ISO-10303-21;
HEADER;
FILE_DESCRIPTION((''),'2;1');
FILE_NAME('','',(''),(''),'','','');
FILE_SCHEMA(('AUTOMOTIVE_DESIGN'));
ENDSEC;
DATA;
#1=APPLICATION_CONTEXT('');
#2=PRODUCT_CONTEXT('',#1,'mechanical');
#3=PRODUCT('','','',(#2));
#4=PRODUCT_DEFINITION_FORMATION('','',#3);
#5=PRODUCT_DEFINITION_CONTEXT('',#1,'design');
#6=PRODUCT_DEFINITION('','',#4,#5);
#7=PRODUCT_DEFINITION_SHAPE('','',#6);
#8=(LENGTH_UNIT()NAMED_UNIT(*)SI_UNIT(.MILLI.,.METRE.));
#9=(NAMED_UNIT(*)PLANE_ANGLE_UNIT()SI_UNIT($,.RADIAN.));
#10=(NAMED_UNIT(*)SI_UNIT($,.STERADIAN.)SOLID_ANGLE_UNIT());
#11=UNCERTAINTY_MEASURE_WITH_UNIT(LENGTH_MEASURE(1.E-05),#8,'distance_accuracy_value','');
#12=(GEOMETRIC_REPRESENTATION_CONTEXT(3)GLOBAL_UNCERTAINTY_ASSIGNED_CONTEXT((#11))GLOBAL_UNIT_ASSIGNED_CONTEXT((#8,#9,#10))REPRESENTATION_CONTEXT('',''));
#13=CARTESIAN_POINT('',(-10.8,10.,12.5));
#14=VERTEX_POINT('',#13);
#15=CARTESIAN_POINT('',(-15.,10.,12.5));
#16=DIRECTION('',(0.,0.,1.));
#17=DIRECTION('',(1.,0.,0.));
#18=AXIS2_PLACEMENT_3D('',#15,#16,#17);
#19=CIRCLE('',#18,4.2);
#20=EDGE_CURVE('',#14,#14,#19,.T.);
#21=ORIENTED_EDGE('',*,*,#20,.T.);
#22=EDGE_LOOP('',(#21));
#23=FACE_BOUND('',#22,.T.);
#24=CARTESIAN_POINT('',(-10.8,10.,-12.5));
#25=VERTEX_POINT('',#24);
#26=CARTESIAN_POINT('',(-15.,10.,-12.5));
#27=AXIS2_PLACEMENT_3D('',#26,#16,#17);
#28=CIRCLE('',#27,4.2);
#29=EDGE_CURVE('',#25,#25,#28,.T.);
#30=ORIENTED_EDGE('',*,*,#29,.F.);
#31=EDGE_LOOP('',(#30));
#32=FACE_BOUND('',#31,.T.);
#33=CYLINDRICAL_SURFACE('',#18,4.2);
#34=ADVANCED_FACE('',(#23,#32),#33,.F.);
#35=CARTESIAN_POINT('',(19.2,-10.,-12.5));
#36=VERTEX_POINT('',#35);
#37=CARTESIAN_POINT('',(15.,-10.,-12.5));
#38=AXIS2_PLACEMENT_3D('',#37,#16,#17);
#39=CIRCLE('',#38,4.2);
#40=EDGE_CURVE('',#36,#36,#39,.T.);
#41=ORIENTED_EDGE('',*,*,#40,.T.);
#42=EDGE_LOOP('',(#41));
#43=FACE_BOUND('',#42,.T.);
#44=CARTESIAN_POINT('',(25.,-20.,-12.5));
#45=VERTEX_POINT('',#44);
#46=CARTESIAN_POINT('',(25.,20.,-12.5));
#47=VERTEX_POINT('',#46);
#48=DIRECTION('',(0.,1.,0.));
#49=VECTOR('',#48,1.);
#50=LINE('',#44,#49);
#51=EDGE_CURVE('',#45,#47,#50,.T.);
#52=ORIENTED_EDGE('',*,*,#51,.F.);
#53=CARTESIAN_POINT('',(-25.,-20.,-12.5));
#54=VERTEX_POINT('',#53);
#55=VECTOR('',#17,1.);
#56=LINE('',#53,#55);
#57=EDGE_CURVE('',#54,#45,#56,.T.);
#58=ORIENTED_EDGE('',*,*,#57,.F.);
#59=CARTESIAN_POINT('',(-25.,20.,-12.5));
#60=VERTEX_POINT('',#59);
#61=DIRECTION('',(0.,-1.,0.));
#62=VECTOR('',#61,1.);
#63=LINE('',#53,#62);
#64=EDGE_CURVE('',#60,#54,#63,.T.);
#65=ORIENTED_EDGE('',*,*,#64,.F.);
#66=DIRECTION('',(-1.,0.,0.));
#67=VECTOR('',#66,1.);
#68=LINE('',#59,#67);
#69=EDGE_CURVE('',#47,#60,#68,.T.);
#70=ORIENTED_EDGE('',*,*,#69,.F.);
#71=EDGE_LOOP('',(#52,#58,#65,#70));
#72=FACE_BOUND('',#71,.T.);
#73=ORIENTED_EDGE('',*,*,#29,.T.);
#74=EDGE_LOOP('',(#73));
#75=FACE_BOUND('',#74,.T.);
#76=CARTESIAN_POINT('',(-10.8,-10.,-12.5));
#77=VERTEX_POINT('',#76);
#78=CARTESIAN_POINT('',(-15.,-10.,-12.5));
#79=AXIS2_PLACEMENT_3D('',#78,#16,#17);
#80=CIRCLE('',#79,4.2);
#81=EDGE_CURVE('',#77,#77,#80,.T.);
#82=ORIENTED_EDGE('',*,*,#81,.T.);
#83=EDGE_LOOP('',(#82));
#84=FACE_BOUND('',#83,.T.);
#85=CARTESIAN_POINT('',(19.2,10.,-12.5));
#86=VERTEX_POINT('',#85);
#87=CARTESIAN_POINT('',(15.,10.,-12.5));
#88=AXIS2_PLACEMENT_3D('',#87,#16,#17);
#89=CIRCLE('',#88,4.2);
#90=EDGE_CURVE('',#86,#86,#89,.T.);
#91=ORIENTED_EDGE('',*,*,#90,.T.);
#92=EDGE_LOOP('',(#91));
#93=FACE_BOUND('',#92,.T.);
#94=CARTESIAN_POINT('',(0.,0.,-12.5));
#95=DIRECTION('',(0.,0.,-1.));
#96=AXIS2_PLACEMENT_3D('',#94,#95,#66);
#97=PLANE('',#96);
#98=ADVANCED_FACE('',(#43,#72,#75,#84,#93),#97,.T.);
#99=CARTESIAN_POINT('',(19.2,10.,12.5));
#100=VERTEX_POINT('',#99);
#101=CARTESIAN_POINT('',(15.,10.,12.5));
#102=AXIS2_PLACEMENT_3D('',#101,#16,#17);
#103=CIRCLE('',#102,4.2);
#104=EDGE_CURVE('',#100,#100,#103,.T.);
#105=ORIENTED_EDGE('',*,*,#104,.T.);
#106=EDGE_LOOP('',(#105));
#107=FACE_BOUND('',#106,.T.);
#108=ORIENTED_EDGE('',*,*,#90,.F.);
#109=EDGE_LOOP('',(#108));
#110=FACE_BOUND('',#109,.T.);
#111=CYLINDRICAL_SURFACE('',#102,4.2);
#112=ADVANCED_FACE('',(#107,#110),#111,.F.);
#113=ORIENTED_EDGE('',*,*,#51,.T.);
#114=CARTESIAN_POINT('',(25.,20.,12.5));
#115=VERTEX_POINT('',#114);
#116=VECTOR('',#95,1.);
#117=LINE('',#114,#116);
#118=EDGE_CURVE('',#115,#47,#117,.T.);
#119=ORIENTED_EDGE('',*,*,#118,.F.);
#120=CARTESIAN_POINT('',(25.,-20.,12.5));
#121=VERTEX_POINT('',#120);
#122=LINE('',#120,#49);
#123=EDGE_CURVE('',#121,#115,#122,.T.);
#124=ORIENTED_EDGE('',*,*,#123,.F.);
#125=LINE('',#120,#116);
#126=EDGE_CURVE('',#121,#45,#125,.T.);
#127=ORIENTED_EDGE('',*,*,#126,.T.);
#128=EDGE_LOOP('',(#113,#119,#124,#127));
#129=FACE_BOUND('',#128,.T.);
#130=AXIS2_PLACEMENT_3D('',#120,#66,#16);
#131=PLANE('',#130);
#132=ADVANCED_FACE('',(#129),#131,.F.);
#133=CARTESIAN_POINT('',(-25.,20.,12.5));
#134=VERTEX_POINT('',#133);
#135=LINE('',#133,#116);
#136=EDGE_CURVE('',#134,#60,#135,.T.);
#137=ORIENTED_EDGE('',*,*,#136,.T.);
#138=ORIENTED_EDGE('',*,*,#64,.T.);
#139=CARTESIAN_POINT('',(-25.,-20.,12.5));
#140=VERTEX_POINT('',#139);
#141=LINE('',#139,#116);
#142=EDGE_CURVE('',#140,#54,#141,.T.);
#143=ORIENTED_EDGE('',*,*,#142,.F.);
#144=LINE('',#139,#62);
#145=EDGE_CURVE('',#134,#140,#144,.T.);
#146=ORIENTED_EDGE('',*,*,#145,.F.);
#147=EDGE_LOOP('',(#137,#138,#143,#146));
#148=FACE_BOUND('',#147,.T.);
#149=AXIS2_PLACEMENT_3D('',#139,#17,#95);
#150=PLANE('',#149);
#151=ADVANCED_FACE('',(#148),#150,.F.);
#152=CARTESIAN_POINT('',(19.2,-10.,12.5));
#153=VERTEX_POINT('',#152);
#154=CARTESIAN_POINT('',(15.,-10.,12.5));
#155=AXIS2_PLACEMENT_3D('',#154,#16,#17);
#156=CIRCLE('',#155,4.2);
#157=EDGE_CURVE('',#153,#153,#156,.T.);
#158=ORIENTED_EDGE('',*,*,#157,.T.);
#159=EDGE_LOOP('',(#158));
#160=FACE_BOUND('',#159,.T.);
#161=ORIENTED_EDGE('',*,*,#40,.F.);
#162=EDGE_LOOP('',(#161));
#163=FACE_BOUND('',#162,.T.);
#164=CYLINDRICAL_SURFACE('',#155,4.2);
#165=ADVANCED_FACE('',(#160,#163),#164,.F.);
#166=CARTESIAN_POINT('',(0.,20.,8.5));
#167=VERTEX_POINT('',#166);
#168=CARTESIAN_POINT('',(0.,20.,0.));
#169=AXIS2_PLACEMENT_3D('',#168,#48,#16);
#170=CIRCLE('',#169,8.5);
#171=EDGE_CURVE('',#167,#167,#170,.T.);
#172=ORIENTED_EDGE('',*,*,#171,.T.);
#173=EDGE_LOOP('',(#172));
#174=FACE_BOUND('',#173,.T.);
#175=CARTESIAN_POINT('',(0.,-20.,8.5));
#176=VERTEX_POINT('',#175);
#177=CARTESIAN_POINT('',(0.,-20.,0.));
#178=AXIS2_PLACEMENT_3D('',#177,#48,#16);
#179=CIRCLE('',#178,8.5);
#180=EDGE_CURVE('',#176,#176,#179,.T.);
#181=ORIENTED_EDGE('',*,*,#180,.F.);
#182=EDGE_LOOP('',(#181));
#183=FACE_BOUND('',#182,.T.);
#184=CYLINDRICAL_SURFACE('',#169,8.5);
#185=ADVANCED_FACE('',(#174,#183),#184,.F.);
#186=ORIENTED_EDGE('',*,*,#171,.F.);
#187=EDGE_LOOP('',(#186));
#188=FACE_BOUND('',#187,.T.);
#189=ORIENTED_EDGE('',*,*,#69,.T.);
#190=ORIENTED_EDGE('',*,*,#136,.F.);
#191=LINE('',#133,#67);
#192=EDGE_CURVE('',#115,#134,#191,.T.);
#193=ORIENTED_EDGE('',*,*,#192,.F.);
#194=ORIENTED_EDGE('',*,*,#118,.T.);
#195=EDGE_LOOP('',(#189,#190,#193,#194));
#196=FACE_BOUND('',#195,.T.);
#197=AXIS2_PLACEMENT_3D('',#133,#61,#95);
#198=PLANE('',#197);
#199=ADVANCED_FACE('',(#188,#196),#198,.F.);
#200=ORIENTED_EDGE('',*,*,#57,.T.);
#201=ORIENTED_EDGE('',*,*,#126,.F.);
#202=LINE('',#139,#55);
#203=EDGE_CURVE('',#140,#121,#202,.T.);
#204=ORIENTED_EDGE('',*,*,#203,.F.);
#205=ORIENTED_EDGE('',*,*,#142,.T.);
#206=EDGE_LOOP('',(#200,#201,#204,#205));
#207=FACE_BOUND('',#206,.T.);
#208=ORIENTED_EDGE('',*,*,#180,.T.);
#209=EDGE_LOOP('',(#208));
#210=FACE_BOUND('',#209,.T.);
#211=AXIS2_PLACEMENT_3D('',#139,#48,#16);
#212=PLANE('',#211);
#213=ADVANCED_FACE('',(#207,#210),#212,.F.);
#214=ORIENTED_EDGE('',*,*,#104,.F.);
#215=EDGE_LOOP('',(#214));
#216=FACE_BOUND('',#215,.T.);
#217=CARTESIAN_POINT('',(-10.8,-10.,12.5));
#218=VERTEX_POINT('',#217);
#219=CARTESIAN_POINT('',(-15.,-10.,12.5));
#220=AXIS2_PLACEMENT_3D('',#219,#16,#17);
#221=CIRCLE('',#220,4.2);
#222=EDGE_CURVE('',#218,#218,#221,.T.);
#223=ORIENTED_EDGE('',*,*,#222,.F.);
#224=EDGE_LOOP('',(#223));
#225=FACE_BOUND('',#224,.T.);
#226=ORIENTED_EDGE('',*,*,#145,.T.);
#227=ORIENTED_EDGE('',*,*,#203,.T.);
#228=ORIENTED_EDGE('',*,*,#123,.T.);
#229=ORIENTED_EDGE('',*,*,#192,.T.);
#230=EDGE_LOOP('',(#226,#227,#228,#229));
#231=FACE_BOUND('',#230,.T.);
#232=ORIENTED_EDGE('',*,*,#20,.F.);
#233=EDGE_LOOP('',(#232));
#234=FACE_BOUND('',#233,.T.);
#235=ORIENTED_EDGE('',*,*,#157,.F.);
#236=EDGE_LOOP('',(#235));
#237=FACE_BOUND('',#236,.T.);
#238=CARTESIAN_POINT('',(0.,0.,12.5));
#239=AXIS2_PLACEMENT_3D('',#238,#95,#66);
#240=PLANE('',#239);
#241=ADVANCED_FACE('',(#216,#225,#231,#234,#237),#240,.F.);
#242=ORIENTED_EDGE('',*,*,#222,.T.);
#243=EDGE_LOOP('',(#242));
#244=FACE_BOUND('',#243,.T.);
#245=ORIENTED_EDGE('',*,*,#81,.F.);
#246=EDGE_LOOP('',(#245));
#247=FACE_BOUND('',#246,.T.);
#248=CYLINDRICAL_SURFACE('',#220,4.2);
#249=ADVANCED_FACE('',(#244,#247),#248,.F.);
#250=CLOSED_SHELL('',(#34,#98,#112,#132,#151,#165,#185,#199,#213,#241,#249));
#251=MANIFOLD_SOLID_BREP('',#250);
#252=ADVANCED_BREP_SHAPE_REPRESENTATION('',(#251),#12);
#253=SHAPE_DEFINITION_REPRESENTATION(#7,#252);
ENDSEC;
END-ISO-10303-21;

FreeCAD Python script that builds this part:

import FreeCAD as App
import Part
import Sketcher
from FreeCAD import Vector


def add_polygon(sketch, points):
    """Adds a closed chain of lines whose ends are joined by coincident constraints."""
    first, n = sketch.GeometryCount, len(points)
    for a, b in zip(points, points[1:] + points[:1]):
        sketch.addGeometry(Part.LineSegment(App.Vector(*a, 0), App.Vector(*b, 0)), False)
    for i in range(n):
        sketch.addConstraint(Sketcher.Constraint("Coincident", first + i, 2, first + (i + 1) % n, 1))

doc = App.newDocument("Part")
params = doc.addObject("Spreadsheet::Sheet", "Params")
for row, (alias, value) in enumerate([
    ("sketch1_width", "50 mm"),
    ("sketch1_height", "40 mm"),
    ("pad1_length", "25 mm"),
    ("sketch2_diameter", "8.4 mm"),
    ("hole_diameter", "8.4 mm"),
    ("sketch3_diameter", "17 mm"),
    ("hole2_diameter", "17 mm"),
], start=1):
    params.set(f"A{row}", alias)
    params.set(f"B{row}", "=" + value)
    params.setAlias(f"B{row}", alias)

body = doc.addObject("PartDesign::Body", "Body")

# Sketch on XY plane
sketch1 = doc.addObject("Sketcher::SketchObject", "Sketch")
body.addObject(sketch1)
sketch1.AttachmentSupport = (doc.XY_Plane, [""])
sketch1.MapMode = "FlatFace"
add_polygon(sketch1, [(-25, 20), (-25, -20), (25, -20), (25, 20)])  # lines 0-3
sketch1.addConstraint(Sketcher.Constraint("Vertical", 0))
sketch1.addConstraint(Sketcher.Constraint("Horizontal", 1))
sketch1.addConstraint(Sketcher.Constraint("Vertical", 2))
sketch1.addConstraint(Sketcher.Constraint("Horizontal", 3))
sketch1.addConstraint(Sketcher.Constraint("Symmetric", 0, 2, 2, 2, -1, 1))
sketch1.addConstraint(Sketcher.Constraint("DistanceX", 1, 1, 1, 2, 50.0))
sketch1.addConstraint(Sketcher.Constraint("DistanceY", 0, 2, 0, 1, 40.0))
sketch1.setExpression("Constraints[9]", "Params.sketch1_width")
sketch1.setExpression("Constraints[10]", "Params.sketch1_height")
pad1 = doc.addObject("PartDesign::Pad", "Pad")
body.addObject(pad1)
pad1.Profile = sketch1
pad1.setExpression("Length", "Params.pad1_length")
pad1.Midplane = True

# Sketch on XY plane
sketch2 = doc.addObject("Sketcher::SketchObject", "Sketch001")
body.addObject(sketch2)
sketch2.AttachmentSupport = (doc.XY_Plane, [""])
sketch2.MapMode = "FlatFace"
sketch2.AttachmentOffset = App.Placement(Vector(0, 0, 12.5), App.Rotation())
sketch2.addGeometry(Part.Circle(Vector(-15, 10, 0), Vector(0, 0, 1), 4.2), False)
sketch2.addGeometry(Part.Circle(Vector(-15, -10, 0), Vector(0, 0, 1), 4.2), False)
sketch2.addGeometry(Part.Circle(Vector(15, -10, 0), Vector(0, 0, 1), 4.2), False)
sketch2.addGeometry(Part.Circle(Vector(15, 10, 0), Vector(0, 0, 1), 4.2), False)
sketch2.addConstraint(Sketcher.Constraint("Equal", 0, 1))
sketch2.addConstraint(Sketcher.Constraint("Equal", 1, 2))
sketch2.addConstraint(Sketcher.Constraint("Equal", 2, 3))
sketch2.addConstraint(Sketcher.Constraint("Symmetric", 0, 3, 2, 3, -1, 1))
sketch2.addConstraint(Sketcher.Constraint("Symmetric", 1, 3, 3, 3, -1, 1))
sketch2.addConstraint(Sketcher.Constraint("Symmetric", 1, 3, 2, 3, -2))
sketch2.addConstraint(Sketcher.Constraint("Diameter", 0, 8.4))
sketch2.addConstraint(Sketcher.Constraint("DistanceX", 0, 3, -1, 1, 15.0))
sketch2.addConstraint(Sketcher.Constraint("DistanceY", -1, 1, 0, 3, 10.0))
sketch2.setExpression("Constraints[6]", "Params.sketch2_diameter")
doc.recompute()
hole = doc.addObject("PartDesign::Hole", "Hole")
body.addObject(hole)
hole.Profile = sketch2
hole.ThreadType = "None"
hole.setExpression("Diameter", "Params.hole_diameter")
hole.DepthType = "ThroughAll"

# Sketch on XZ plane
sketch3 = doc.addObject("Sketcher::SketchObject", "Sketch002")
body.addObject(sketch3)
sketch3.AttachmentSupport = (doc.XZ_Plane, [""])
sketch3.MapMode = "FlatFace"
sketch3.AttachmentOffset = App.Placement(Vector(0, 0, -20), App.Rotation())
sketch3.addGeometry(Part.Circle(Vector(0, 0, 0), Vector(0, 0, 1), 8), False)
sketch3.addConstraint(Sketcher.Constraint("Coincident", 0, 3, -1, 1))
sketch3.addConstraint(Sketcher.Constraint("Diameter", 0, 17.0))
sketch3.setExpression("Constraints[1]", "Params.sketch3_diameter")
doc.recompute()
hole2 = doc.addObject("PartDesign::Hole", "Hole001")
body.addObject(hole2)
hole2.Profile = sketch3
hole2.ThreadType = "None"
hole2.setExpression("Diameter", "Params.hole2_diameter")
hole2.DepthType = "ThroughAll"
hole2.Reversed = True

doc.recompute()
